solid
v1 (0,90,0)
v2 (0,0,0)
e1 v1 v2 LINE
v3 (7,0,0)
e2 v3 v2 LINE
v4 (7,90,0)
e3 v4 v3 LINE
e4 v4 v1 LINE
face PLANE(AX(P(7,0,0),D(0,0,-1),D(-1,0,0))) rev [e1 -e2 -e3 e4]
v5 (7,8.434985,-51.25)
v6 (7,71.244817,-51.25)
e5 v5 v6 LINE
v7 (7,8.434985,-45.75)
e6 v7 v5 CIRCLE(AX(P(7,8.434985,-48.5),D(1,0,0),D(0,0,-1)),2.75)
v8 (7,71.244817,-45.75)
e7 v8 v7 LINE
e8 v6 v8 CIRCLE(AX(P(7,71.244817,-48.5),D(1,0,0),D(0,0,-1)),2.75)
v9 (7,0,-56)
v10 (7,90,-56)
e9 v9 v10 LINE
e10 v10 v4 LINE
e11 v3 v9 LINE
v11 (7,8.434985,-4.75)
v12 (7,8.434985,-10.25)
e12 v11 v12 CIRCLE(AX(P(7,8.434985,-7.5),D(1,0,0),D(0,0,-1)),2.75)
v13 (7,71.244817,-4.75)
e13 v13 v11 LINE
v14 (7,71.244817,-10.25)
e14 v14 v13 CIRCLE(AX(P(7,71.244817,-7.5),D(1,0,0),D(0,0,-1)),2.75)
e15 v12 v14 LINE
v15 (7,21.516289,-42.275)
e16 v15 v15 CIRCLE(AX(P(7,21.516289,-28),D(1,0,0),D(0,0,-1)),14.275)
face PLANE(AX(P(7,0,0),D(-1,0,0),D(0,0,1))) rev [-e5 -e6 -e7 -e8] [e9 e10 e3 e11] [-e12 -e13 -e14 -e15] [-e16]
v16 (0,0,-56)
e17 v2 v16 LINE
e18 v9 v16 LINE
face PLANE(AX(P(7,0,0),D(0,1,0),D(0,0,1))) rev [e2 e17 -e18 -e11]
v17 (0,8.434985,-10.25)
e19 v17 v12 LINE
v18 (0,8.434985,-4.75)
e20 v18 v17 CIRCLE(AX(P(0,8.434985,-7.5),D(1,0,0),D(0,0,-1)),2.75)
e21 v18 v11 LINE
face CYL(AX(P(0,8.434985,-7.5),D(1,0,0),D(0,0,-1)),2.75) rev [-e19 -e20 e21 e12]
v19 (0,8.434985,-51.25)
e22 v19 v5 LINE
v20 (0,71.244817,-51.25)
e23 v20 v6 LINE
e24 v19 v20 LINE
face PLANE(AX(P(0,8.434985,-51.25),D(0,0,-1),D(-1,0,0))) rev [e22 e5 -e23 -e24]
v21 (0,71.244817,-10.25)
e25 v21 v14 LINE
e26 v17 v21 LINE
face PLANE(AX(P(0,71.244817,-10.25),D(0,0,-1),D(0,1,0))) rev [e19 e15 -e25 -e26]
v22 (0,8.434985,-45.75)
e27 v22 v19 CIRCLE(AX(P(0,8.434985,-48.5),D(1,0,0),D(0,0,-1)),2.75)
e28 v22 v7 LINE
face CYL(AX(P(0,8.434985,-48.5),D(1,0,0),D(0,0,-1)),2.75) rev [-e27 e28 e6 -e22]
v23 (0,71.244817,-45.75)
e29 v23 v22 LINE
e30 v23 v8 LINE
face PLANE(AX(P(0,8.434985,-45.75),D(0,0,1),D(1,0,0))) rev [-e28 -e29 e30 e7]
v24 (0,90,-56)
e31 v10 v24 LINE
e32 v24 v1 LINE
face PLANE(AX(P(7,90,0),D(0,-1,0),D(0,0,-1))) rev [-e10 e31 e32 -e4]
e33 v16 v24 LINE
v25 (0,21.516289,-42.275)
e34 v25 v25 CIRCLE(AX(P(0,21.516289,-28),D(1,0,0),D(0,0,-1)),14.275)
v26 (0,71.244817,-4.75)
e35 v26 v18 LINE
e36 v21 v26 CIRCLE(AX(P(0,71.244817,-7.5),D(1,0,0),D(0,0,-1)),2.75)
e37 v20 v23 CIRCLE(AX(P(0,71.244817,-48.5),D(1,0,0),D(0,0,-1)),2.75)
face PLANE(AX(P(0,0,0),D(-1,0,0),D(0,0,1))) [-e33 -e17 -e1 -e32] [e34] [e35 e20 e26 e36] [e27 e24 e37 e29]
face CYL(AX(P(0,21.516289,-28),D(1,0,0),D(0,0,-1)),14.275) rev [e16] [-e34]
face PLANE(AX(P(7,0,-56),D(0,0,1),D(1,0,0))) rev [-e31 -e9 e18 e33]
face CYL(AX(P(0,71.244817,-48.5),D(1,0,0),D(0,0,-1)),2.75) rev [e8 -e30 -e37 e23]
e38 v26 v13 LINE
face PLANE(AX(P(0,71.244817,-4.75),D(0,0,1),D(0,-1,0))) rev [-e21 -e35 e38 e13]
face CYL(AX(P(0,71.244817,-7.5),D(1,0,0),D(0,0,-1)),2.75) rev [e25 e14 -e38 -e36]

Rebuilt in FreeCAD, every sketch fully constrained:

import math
import FreeCAD as App
import Part
import Sketcher

doc = App.newDocument("Part")
params = doc.addObject("Spreadsheet::Sheet", "Params")
for row, (alias, value) in enumerate([
    ("sketch1_width", "90 mm"),
    ("sketch1_height", "56 mm"),
    ("pad1_length", "7 mm"),
    ("sketch2_diameter", "28.55 mm"),
    ("sketch3_radius", "2.75 mm"),
], start=1):
    params.set(f"A{row}", alias)
    params.set(f"B{row}", "=" + value)
    params.setAlias(f"B{row}", alias)

body = doc.addObject("PartDesign::Body", "Body")

# Sketch on YZ plane
sketch1 = body.newObject("Sketcher::SketchObject", "Sketch")
sketch1.AttachmentSupport = (doc.getObject("YZ_Plane"), [""])
sketch1.MapMode = "FlatFace"
sketch1.addGeometry([
    Part.LineSegment(App.Vector(90, 0, 0), App.Vector(0, 0, 0)),
    Part.LineSegment(App.Vector(0, 0, 0), App.Vector(0, -56, 0)),
    Part.LineSegment(App.Vector(0, -56, 0), App.Vector(90, -56, 0)),
    Part.LineSegment(App.Vector(90, -56, 0), App.Vector(90, 0, 0)),
], False)
sketch1.addConstraint([
    Sketcher.Constraint("Coincident", 0, 2, 1, 1),
    Sketcher.Constraint("Coincident", 1, 2, 2, 1),
    Sketcher.Constraint("Coincident", 2, 2, 3, 1),
    Sketcher.Constraint("Coincident", 3, 2, 0, 1),
    Sketcher.Constraint("Horizontal", 0),
    Sketcher.Constraint("Vertical", 1),
    Sketcher.Constraint("Horizontal", 2),
    Sketcher.Constraint("Vertical", 3),
    Sketcher.Constraint("Coincident", 0, 2, -1, 1),
    Sketcher.Constraint("DistanceX", 0, 2, 0, 1, 90.0),
    Sketcher.Constraint("DistanceY", 1, 2, 1, 1, 56.0),
])
sketch1.setExpression("Constraints[9]", "Params.sketch1_width")
sketch1.setExpression("Constraints[10]", "Params.sketch1_height")
pad1 = body.newObject("PartDesign::Pad", "Pad")
pad1.Profile = sketch1
pad1.setExpression("Length", "Params.pad1_length")

# Sketch on YZ plane
sketch2 = body.newObject("Sketcher::SketchObject", "Sketch001")
sketch2.AttachmentSupport = (doc.getObject("YZ_Plane"), [""])
sketch2.MapMode = "FlatFace"
sketch2.AttachmentOffset = App.Placement(App.Vector(0, 0, 7), App.Rotation())
sketch2.addGeometry(Part.Circle(App.Vector(22, -28, 0), App.Vector(0, 0, 1), 14), False)
sketch2.addConstraint([
    Sketcher.Constraint("Diameter", 0, 28.55),
    Sketcher.Constraint("DistanceY", 0, 3, -1, 1, 28.0),
    Sketcher.Constraint("DistanceX", -1, 1, 0, 3, 21.516289),
])
sketch2.setExpression("Constraints[0]", "Params.sketch2_diameter")
pocket1 = body.newObject("PartDesign::Pocket", "Pocket")
pocket1.Profile = sketch2
pocket1.Type = "ThroughAll"

# Sketch on YZ plane
sketch3 = body.newObject("Sketcher::SketchObject", "Sketch002")
sketch3.AttachmentSupport = (doc.getObject("YZ_Plane"), [""])
sketch3.MapMode = "FlatFace"
sketch3.AttachmentOffset = App.Placement(App.Vector(0, 0, 7), App.Rotation())
sketch3.addGeometry([
    Part.LineSegment(App.Vector(8.4, -10.2, 0), App.Vector(71.2, -10.2, 0)),  # 0
    Part.ArcOfCircle(Part.Circle(App.Vector(71.2, -7.5, 0), App.Vector(0, 0, 1), 2.8), math.radians(-90), math.radians(90)),  # 1
    Part.LineSegment(App.Vector(71.2, -4.8, 0), App.Vector(8.4, -4.8, 0)),  # 2
    Part.ArcOfCircle(Part.Circle(App.Vector(8.4, -7.5, 0), App.Vector(0, 0, 1), 2.8), math.radians(90), math.radians(270)),  # 3
    Part.LineSegment(App.Vector(71.2, -45.8, 0), App.Vector(8.4, -45.8, 0)),  # 4
    Part.ArcOfCircle(Part.Circle(App.Vector(8.4, -48.5, 0), App.Vector(0, 0, 1), 2.8), math.radians(90), math.radians(270)),  # 5
    Part.LineSegment(App.Vector(8.4, -51.2, 0), App.Vector(71.2, -51.2, 0)),  # 6
    Part.ArcOfCircle(Part.Circle(App.Vector(71.2, -48.5, 0), App.Vector(0, 0, 1), 2.8), math.radians(-90), math.radians(90)),  # 7
], False)
sketch3.addConstraint([
    Sketcher.Constraint("Tangent", 0, 2, 1, 1),
    Sketcher.Constraint("Tangent", 1, 2, 2, 1),
    Sketcher.Constraint("Tangent", 2, 2, 3, 1),
    Sketcher.Constraint("Tangent", 3, 2, 0, 1),
    Sketcher.Constraint("Tangent", 4, 2, 5, 1),
    Sketcher.Constraint("Tangent", 5, 2, 6, 1),
    Sketcher.Constraint("Tangent", 6, 2, 7, 1),
    Sketcher.Constraint("Tangent", 7, 2, 4, 1),
    Sketcher.Constraint("Horizontal", 0),
    Sketcher.Constraint("Horizontal", 2),
    Sketcher.Constraint("Horizontal", 4),
    Sketcher.Constraint("Horizontal", 6),
    Sketcher.Constraint("Equal", 3, 5),
    Sketcher.Constraint("Vertical", 3, 3, 5, 3),
    Sketcher.Constraint("Vertical", 1, 3, 7, 3),
    Sketcher.Constraint("Radius", 1, 2.75),
    Sketcher.Constraint("DistanceY", 5, 3, 3, 3, 41.0),
    Sketcher.Constraint("DistanceY", 1, 3, -1, 1, 7.5),
    Sketcher.Constraint("DistanceX", 0, 1, 0, 2, 62.809832),
    Sketcher.Constraint("DistanceX", -1, 1, 1, 3, 71.244817),
])
sketch3.setExpression("Constraints[15]", "Params.sketch3_radius")
pocket2 = body.newObject("PartDesign::Pocket", "Pocket001")
pocket2.Profile = sketch3
pocket2.Type = "ThroughAll"

doc.recompute()
